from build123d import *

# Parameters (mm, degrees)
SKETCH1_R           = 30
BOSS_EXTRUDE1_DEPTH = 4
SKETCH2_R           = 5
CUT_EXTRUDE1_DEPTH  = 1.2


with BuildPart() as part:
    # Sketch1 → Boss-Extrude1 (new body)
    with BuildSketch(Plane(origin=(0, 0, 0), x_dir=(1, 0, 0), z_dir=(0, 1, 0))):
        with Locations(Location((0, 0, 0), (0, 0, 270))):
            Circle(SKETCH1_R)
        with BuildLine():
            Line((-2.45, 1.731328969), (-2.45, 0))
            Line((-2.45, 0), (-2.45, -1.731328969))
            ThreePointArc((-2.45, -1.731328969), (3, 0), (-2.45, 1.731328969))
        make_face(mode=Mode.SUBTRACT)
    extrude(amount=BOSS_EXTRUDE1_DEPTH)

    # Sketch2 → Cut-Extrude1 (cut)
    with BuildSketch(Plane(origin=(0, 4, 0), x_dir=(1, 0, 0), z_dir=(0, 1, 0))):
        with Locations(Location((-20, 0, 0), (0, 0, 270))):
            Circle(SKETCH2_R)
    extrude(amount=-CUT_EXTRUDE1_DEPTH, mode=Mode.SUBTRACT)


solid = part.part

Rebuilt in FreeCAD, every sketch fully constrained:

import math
import FreeCAD as App
import Part
import Sketcher

doc = App.newDocument("Part")
params = doc.addObject("Spreadsheet::Sheet", "Params")
for row, (alias, value) in enumerate([
    ("sketch1_diameter", "60 mm"),
    ("sketch1_radius", "3 mm"),
    ("pad1_length", "4 mm"),
    ("sketch2_diameter", "10 mm"),
    ("pocket1_length", "1.2 mm"),
], start=1):
    params.set(f"A{row}", alias)
    params.set(f"B{row}", "=" + value)
    params.setAlias(f"B{row}", alias)

body = doc.addObject("PartDesign::Body", "Body")

# Sketch on XZ plane
sketch1 = body.newObject("Sketcher::SketchObject", "Sketch")
sketch1.AttachmentSupport = (doc.getObject("XZ_Plane"), [""])
sketch1.MapMode = "FlatFace"
sketch1.addGeometry([
    Part.Circle(App.Vector(0, 0, 0), App.Vector(0, 0, 1), 30),
    Part.LineSegment(App.Vector(-2.5, 1.7, 0), App.Vector(-2.5, -1.7, 0)),
    Part.ArcOfCircle(Part.Circle(App.Vector(0, 0, 0), App.Vector(0, 0, 1), 3), math.radians(-145), math.radians(145)),
], False)
sketch1.addConstraint([
    Sketcher.Constraint("Coincident", 1, 1, 2, 2),
    Sketcher.Constraint("Coincident", 2, 1, 1, 2),
    Sketcher.Constraint("Vertical", 1),
    Sketcher.Constraint("Coincident", 0, 3, -1, 1),
    Sketcher.Constraint("Coincident", 2, 3, -1, 1),
    Sketcher.Constraint("Diameter", 0, 60.0),
    Sketcher.Constraint("Radius", 2, 3.0),
    Sketcher.Constraint("DistanceX", 1, 1, -1, 1, 2.45),
])
sketch1.setExpression("Constraints[5]", "Params.sketch1_diameter")
sketch1.setExpression("Constraints[6]", "Params.sketch1_radius")
pad1 = body.newObject("PartDesign::Pad", "Pad")
pad1.Profile = sketch1
pad1.setExpression("Length", "Params.pad1_length")
pad1.Reversed = True

# Sketch on XZ plane
sketch2 = body.newObject("Sketcher::SketchObject", "Sketch001")
sketch2.AttachmentSupport = (doc.getObject("XZ_Plane"), [""])
sketch2.MapMode = "FlatFace"
sketch2.AttachmentOffset = App.Placement(App.Vector(0, 0, -4), App.Rotation())
sketch2.addGeometry(Part.Circle(App.Vector(-20, 0, 0), App.Vector(0, 0, 1), 5), False)
sketch2.addConstraint([
    Sketcher.Constraint("PointOnObject", 0, 3, -1),
    Sketcher.Constraint("Diameter", 0, 10.0),
    Sketcher.Constraint("DistanceX", 0, 3, -1, 1, 20.0),
])
sketch2.setExpression("Constraints[1]", "Params.sketch2_diameter")
pocket1 = body.newObject("PartDesign::Pocket", "Pocket")
pocket1.Profile = sketch2
pocket1.setExpression("Length", "Params.pocket1_length")
pocket1.Reversed = True

doc.recompute()
